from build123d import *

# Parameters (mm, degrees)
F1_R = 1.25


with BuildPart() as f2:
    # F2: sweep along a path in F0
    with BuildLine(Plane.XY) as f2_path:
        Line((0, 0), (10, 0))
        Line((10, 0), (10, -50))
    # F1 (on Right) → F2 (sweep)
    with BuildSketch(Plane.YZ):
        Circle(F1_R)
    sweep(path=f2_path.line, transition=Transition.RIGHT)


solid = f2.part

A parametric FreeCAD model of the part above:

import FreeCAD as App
import Part
import Sketcher

doc = App.newDocument("Part")
body = doc.addObject("PartDesign::Body", "Body")

sketch1 = doc.addObject("Sketcher::SketchObject", "Sketch")
body.addObject(sketch1)
sketch1.AttachmentSupport = (doc.YZ_Plane, [""])
sketch1.MapMode = "FlatFace"
sketch1.addGeometry(Part.Circle(App.Vector(0, 0, 0), App.Vector(0, 0, 1), 1.2), False)
sketch1.addConstraint([
    Sketcher.Constraint("Coincident", 0, 3, -1, 1),
    Sketcher.Constraint("Diameter", 0, 2.5),
])

sketch2 = doc.addObject("Sketcher::SketchObject", "Sketch001")
body.addObject(sketch2)
sketch2.AttachmentSupport = (doc.XY_Plane, [""])
sketch2.MapMode = "FlatFace"
sketch2.addGeometry([
    Part.LineSegment(App.Vector(0, 0, 0), App.Vector(10, 0, 0)),
    Part.LineSegment(App.Vector(10, 0, 0), App.Vector(10, -50, 0)),
], False)
sketch2.addConstraint([
    Sketcher.Constraint("Coincident", 0, 2, 1, 1),
    Sketcher.Constraint("Horizontal", 0),
    Sketcher.Constraint("Vertical", 1),
    Sketcher.Constraint("Coincident", 0, 1, -1, 1),
    Sketcher.Constraint("DistanceX", 0, 1, 0, 2, 10.0),
    Sketcher.Constraint("DistanceY", 1, 2, 1, 1, 50.0),
])
doc.recompute()

additivepipe = doc.addObject("PartDesign::AdditivePipe", "AdditivePipe")
body.addObject(additivepipe)
additivepipe.Profile = sketch1
additivepipe.Spine = (sketch2, ["Edge1", "Edge2"])
additivepipe.Transition = "Right corner"

doc.recompute()
